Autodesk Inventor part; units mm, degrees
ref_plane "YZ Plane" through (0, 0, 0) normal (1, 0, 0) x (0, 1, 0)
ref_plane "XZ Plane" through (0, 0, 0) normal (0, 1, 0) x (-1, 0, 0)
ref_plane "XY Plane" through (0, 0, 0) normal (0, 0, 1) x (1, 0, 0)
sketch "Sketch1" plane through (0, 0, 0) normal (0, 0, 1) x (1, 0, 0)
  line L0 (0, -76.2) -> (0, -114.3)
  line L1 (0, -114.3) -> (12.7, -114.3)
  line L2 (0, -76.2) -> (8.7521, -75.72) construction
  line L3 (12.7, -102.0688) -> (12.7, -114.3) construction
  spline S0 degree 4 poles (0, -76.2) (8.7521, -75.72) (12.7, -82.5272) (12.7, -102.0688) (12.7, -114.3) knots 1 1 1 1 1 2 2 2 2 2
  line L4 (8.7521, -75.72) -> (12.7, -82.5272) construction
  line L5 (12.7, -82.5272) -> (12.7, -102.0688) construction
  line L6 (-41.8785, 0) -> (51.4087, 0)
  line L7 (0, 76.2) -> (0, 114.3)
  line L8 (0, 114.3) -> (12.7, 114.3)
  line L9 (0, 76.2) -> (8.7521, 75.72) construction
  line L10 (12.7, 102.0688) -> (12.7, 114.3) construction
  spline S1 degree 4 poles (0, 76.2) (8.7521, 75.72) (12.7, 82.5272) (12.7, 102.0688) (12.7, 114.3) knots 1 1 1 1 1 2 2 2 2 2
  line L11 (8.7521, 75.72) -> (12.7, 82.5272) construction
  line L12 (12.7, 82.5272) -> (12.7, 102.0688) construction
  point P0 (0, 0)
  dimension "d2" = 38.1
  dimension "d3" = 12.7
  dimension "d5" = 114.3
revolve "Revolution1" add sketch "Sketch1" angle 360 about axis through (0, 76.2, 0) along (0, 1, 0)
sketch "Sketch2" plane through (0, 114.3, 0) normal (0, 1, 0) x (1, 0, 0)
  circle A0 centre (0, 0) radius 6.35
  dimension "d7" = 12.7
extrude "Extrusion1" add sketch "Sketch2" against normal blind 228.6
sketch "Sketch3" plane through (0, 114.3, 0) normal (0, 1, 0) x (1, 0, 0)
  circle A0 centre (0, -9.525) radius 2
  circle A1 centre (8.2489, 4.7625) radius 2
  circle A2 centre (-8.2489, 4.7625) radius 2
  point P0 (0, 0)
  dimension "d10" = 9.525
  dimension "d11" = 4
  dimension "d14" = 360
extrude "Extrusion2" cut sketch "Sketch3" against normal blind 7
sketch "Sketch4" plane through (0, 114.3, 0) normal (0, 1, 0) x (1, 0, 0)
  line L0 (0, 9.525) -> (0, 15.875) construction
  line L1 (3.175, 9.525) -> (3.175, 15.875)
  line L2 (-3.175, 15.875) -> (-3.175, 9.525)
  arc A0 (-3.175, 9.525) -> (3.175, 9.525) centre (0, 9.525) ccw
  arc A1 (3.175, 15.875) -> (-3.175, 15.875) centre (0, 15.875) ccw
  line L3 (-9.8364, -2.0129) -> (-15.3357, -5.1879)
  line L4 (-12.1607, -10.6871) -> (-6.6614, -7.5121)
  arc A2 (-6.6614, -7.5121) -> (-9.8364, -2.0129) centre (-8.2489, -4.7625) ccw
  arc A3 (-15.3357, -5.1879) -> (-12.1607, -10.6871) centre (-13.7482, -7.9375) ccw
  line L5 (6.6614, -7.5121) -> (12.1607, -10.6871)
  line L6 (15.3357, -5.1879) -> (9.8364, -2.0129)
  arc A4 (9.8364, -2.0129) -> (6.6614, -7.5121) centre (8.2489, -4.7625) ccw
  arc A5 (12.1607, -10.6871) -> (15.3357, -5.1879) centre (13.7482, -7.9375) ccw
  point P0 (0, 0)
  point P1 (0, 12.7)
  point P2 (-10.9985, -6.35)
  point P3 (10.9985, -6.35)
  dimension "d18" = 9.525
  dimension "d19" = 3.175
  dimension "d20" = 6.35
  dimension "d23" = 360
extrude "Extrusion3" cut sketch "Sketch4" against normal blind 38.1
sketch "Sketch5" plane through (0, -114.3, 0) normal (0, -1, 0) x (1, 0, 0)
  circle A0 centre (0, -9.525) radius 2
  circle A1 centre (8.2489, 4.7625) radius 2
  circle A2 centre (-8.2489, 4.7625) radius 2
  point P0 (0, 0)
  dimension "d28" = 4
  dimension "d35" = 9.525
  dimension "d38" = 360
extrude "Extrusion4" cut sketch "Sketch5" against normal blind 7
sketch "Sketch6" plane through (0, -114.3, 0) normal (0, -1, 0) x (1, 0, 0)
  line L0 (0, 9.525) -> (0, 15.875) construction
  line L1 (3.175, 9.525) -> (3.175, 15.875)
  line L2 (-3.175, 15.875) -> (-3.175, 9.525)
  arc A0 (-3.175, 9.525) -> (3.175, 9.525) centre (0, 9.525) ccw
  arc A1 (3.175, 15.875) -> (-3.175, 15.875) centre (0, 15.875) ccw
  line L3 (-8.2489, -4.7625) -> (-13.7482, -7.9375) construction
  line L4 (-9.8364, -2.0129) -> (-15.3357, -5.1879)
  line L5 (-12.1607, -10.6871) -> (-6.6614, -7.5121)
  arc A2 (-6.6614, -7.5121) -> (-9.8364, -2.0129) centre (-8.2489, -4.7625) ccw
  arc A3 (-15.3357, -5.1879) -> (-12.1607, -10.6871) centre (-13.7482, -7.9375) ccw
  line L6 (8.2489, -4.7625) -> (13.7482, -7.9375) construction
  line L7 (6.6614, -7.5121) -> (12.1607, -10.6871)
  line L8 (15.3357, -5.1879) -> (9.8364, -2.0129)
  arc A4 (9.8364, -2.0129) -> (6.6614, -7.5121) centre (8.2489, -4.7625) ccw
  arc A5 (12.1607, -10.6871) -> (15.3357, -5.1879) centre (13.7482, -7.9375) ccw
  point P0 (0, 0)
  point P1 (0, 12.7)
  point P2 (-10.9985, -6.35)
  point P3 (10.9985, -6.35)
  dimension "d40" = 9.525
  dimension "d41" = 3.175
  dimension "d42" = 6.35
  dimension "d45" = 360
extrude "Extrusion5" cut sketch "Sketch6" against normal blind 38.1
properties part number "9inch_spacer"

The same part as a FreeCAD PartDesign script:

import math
import FreeCAD as App
import Part
import Sketcher
Q = App.Units.Quantity

doc = App.newDocument("Part")
body = doc.addObject("PartDesign::Body", "Body")
body.AllowCompound = True

# Sketch on XY plane
sketch1 = doc.addObject("Sketcher::SketchObject", "Sketch")
body.addObject(sketch1)
sketch1.AttachmentSupport = (doc.XY_Plane, [""])
sketch1.MapMode = "FlatFace"
sketch1.addGeometry(Part.BSplineCurve([App.Vector(0, -76.2, 0), App.Vector(8.7521, -75.72, 0), App.Vector(12.7, -82.5272, 0), App.Vector(12.7, -102.0688, 0), App.Vector(12.7, -114.3, 0)], [5, 5], [1, 2], False, 4, [1, 1, 1, 1, 1], False), False)
sketch1.addGeometry(Part.LineSegment(App.Vector(0, -76.2, 0), App.Vector(0, -114.3, 0)), False)
sketch1.addGeometry(Part.LineSegment(App.Vector(0, -114.3, 0), App.Vector(12.7, -114.3, 0)), False)
sketch1.addGeometry(Part.LineSegment(App.Vector(0, 114.3, 0), App.Vector(0, 76.2, 0)), False)
sketch1.addGeometry(Part.BSplineCurve([App.Vector(0, 76.2, 0), App.Vector(8.7521, 75.72, 0), App.Vector(12.7, 82.5272, 0), App.Vector(12.7, 102.0688, 0), App.Vector(12.7, 114.3, 0)], [5, 5], [1, 2], False, 4, [1, 1, 1, 1, 1], False), False)
sketch1.addGeometry(Part.LineSegment(App.Vector(12.7, 114.3, 0), App.Vector(0, 114.3, 0)), False)
sketch1.addConstraint(Sketcher.Constraint("Block", 0))
sketch1.addConstraint(Sketcher.Constraint("Block", 4))
sketch1.addConstraint(Sketcher.Constraint("Coincident", 0, 1, 1, 1))
sketch1.addConstraint(Sketcher.Constraint("Coincident", 1, 2, 2, 1))
sketch1.addConstraint(Sketcher.Constraint("Coincident", 2, 2, 0, 2))
sketch1.addConstraint(Sketcher.Constraint("Coincident", 3, 2, 4, 1))
sketch1.addConstraint(Sketcher.Constraint("Coincident", 4, 2, 5, 1))
sketch1.addConstraint(Sketcher.Constraint("Coincident", 5, 2, 3, 1))
sketch1.addConstraint(Sketcher.Constraint("Vertical", 1))
sketch1.addConstraint(Sketcher.Constraint("Horizontal", 2))
sketch1.addConstraint(Sketcher.Constraint("Vertical", 3))
sketch1.addConstraint(Sketcher.Constraint("Horizontal", 5))
revolution = doc.addObject("PartDesign::Revolution", "Revolution")
body.addObject(revolution)
revolution.Profile = sketch1
revolution.ReferenceAxis = (sketch1, ["V_Axis"])
revolution.Angle = 360

# Sketch on XZ plane
sketch2 = doc.addObject("Sketcher::SketchObject", "Sketch001")
body.addObject(sketch2)
sketch2.AttachmentSupport = (doc.XZ_Plane, [""])
sketch2.MapMode = "FlatFace"
sketch2.AttachmentOffset = App.Placement(App.Vector(0, 0, -4.5 * 25.4), App.Rotation())
sketch2.addGeometry(Part.Circle(App.Vector(0, 0, 0), App.Vector(0, 0, 1), 6), False)
sketch2.addConstraint(Sketcher.Constraint("Coincident", 0, 3, -1, 1))
sketch2.addConstraint(Sketcher.Constraint("Diameter", 0, Q("0.5 in")))
pad1 = doc.addObject("PartDesign::Pad", "Pad")
body.addObject(pad1)
pad1.Profile = sketch2
pad1.Length = Q("9 in")

# Sketch on XZ plane
sketch3 = doc.addObject("Sketcher::SketchObject", "Sketch002")
body.addObject(sketch3)
sketch3.AttachmentSupport = (doc.XZ_Plane, [""])
sketch3.MapMode = "FlatFace"
sketch3.AttachmentOffset = App.Placement(App.Vector(0, 0, -4.5 * 25.4), App.Rotation())
sketch3.addGeometry(Part.Circle(App.Vector(0, 9.5, 0), App.Vector(0, 0, 1), 2), False)
sketch3.addGeometry(Part.Circle(App.Vector(8.2, -4.8, 0), App.Vector(0, 0, 1), 2), False)
sketch3.addGeometry(Part.Circle(App.Vector(-8.2, -4.8, 0), App.Vector(0, 0, 1), 2), False)
sketch3.addConstraint(Sketcher.Constraint("Equal", 0, 1))
sketch3.addConstraint(Sketcher.Constraint("Equal", 1, 2))
sketch3.addConstraint(Sketcher.Constraint("Symmetric", 1, 3, 2, 3, -2))
sketch3.addConstraint(Sketcher.Constraint("PointOnObject", 0, 3, -2))
sketch3.addConstraint(Sketcher.Constraint("Diameter", 0, 4.0))
sketch3.addConstraint(Sketcher.Constraint("DistanceY", -1, 1, 0, 3, Q("0.375 in")))
sketch3.addConstraint(Sketcher.Constraint("DistanceY", 1, 3, -1, 1, Q("0.1875 in")))
sketch3.addConstraint(Sketcher.Constraint("DistanceX", -1, 1, 1, 3, 8.249))
pocket1 = doc.addObject("PartDesign::Pocket", "Pocket")
body.addObject(pocket1)
pocket1.Profile = sketch3
pocket1.Length = Q("0.2755906 in")
pocket1.Reversed = True

# Sketch on XZ plane
sketch4 = doc.addObject("Sketcher::SketchObject", "Sketch003")
body.addObject(sketch4)
sketch4.AttachmentSupport = (doc.XZ_Plane, [""])
sketch4.MapMode = "FlatFace"
sketch4.AttachmentOffset = App.Placement(App.Vector(0, 0, -4.5 * 25.4), App.Rotation())
sketch4.addGeometry(Part.ArcOfCircle(Part.Circle(App.Vector(0, -9.5, 0), App.Vector(0, 0, 1), 3.2), math.radians(0), math.radians(180)), False)
sketch4.addGeometry(Part.LineSegment(App.Vector(3.2, -9.5, 0), App.Vector(3.2, -15.9, 0)), False)
sketch4.addGeometry(Part.ArcOfCircle(Part.Circle(App.Vector(0, -15.9, 0), App.Vector(0, 0, 1), 3.2), math.radians(180), math.radians(360)), False)
sketch4.addGeometry(Part.LineSegment(App.Vector(-3.2, -15.9, 0), App.Vector(-3.2, -9.5, 0)), False)
sketch4.addGeometry(Part.ArcOfCircle(Part.Circle(App.Vector(-8.2, 4.8, 0), App.Vector(0, 0, 1), 3.2), math.radians(-120), math.radians(60)), False)
sketch4.addGeometry(Part.LineSegment(App.Vector(-9.8, 2, 0), App.Vector(-15.3, 5.2, 0)), False)
sketch4.addGeometry(Part.ArcOfCircle(Part.Circle(App.Vector(-13.7, 7.9, 0), App.Vector(0, 0, 1), 3.2), math.radians(60), math.radians(240)), False)
sketch4.addGeometry(Part.LineSegment(App.Vector(-12.2, 10.7, 0), App.Vector(-6.7, 7.5, 0)), False)
sketch4.addGeometry(Part.ArcOfCircle(Part.Circle(App.Vector(8.2, 4.8, 0), App.Vector(0, 0, 1), 3.2), math.radians(120), math.radians(300)), False)
sketch4.addGeometry(Part.LineSegment(App.Vector(6.7, 7.5, 0), App.Vector(12.2, 10.7, 0)), False)
sketch4.addGeometry(Part.ArcOfCircle(Part.Circle(App.Vector(13.7, 7.9, 0), App.Vector(0, 0, 1), 3.2), math.radians(-60), math.radians(120)), False)
sketch4.addGeometry(Part.LineSegment(App.Vector(15.3, 5.2, 0), App.Vector(9.8, 2, 0)), False)
sketch4.addConstraint(Sketcher.Constraint("Tangent", 0, 1, 1, 1))
sketch4.addConstraint(Sketcher.Constraint("Tangent", 1, 2, 2, 2))
sketch4.addConstraint(Sketcher.Constraint("Tangent", 2, 1, 3, 1))
sketch4.addConstraint(Sketcher.Constraint("Tangent", 3, 2, 0, 2))
sketch4.addConstraint(Sketcher.Constraint("Tangent", 4, 1, 5, 1))
sketch4.addConstraint(Sketcher.Constraint("Tangent", 5, 2, 6, 2))
sketch4.addConstraint(Sketcher.Constraint("Tangent", 6, 1, 7, 1))
sketch4.addConstraint(Sketcher.Constraint("Tangent", 7, 2, 4, 2))
sketch4.addConstraint(Sketcher.Constraint("Tangent", 8, 1, 9, 1))
sketch4.addConstraint(Sketcher.Constraint("Tangent", 9, 2, 10, 2))
sketch4.addConstraint(Sketcher.Constraint("Tangent", 10, 1, 11, 1))
sketch4.addConstraint(Sketcher.Constraint("Tangent", 11, 2, 8, 2))
sketch4.addConstraint(Sketcher.Constraint("Vertical", 1))
sketch4.addConstraint(Sketcher.Constraint("Vertical", 3))
sketch4.addConstraint(Sketcher.Constraint("Equal", 2, 4))
sketch4.addConstraint(Sketcher.Constraint("Equal", 4, 6))
sketch4.addConstraint(Sketcher.Constraint("Equal", 6, 8))
sketch4.addConstraint(Sketcher.Constraint("Equal", 8, 10))
sketch4.addConstraint(Sketcher.Constraint("Symmetric", 4, 3, 8, 3, -2))
sketch4.addConstraint(Sketcher.Constraint("Symmetric", 6, 3, 10, 3, -2))
sketch4.addConstraint(Sketcher.Constraint("PointOnObject", 0, 3, -2))
sketch4.addConstraint(Sketcher.Constraint("Radius", 0, Q("0.125 in")))
sketch4.addConstraint(Sketcher.Constraint("DistanceY", 1, 2, 1, 1, Q("0.25 in")))
sketch4.addConstraint(Sketcher.Constraint("Distance", 5, Q("0.25 in")))
sketch4.addConstraint(Sketcher.Constraint("DistanceY", 0, 3, -1, 1, Q("0.375 in")))
sketch4.addConstraint(Sketcher.Constraint("Angle", 5, Q("150.0002 deg")))
sketch4.addConstraint(Sketcher.Constraint("DistanceY", -1, 1, 4, 3, Q("0.1875 in")))
sketch4.addConstraint(Sketcher.Constraint("DistanceX", 4, 3, -1, 1, 8.249))
pocket2 = doc.addObject("PartDesign::Pocket", "Pocket001")
body.addObject(pocket2)
pocket2.Profile = sketch4
pocket2.Length = Q("1.5 in")
pocket2.Reversed = True

# Sketch on XZ plane
sketch5 = doc.addObject("Sketcher::SketchObject", "Sketch004")
body.addObject(sketch5)
sketch5.AttachmentSupport = (doc.XZ_Plane, [""])
sketch5.MapMode = "FlatFace"
sketch5.AttachmentOffset = App.Placement(App.Vector(0, 0, 4.5 * 25.4), App.Rotation())
sketch5.addGeometry(Part.Circle(App.Vector(0, -9.5, 0), App.Vector(0, 0, 1), 2), False)
sketch5.addGeometry(Part.Circle(App.Vector(8.2, 4.8, 0), App.Vector(0, 0, 1), 2), False)
sketch5.addGeometry(Part.Circle(App.Vector(-8.2, 4.8, 0), App.Vector(0, 0, 1), 2), False)
sketch5.addConstraint(Sketcher.Constraint("Equal", 0, 1))
sketch5.addConstraint(Sketcher.Constraint("Equal", 1, 2))
sketch5.addConstraint(Sketcher.Constraint("Symmetric", 1, 3, 2, 3, -2))
sketch5.addConstraint(Sketcher.Constraint("PointOnObject", 0, 3, -2))
sketch5.addConstraint(Sketcher.Constraint("Diameter", 0, 4.0))
sketch5.addConstraint(Sketcher.Constraint("DistanceY", 0, 3, -1, 1, Q("0.375 in")))
sketch5.addConstraint(Sketcher.Constraint("DistanceY", -1, 1, 1, 3, Q("0.1875 in")))
sketch5.addConstraint(Sketcher.Constraint("DistanceX", -1, 1, 1, 3, 8.249))
pocket3 = doc.addObject("PartDesign::Pocket", "Pocket002")
body.addObject(pocket3)
pocket3.Profile = sketch5
pocket3.Length = Q("0.2755906 in")

# Sketch on XZ plane
sketch6 = doc.addObject("Sketcher::SketchObject", "Sketch005")
body.addObject(sketch6)
sketch6.AttachmentSupport = (doc.XZ_Plane, [""])
sketch6.MapMode = "FlatFace"
sketch6.AttachmentOffset = App.Placement(App.Vector(0, 0, 4.5 * 25.4), App.Rotation())
sketch6.addGeometry(Part.ArcOfCircle(Part.Circle(App.Vector(0, 9.5, 0), App.Vector(0, 0, 1), 3.2), math.radians(180), math.radians(360)), False)
sketch6.addGeometry(Part.LineSegment(App.Vector(3.2, 9.5, 0), App.Vector(3.2, 15.9, 0)), False)
sketch6.addGeometry(Part.ArcOfCircle(Part.Circle(App.Vector(0, 15.9, 0), App.Vector(0, 0, 1), 3.2), math.radians(0), math.radians(180)), False)
sketch6.addGeometry(Part.LineSegment(App.Vector(-3.2, 15.9, 0), App.Vector(-3.2, 9.5, 0)), False)
sketch6.addGeometry(Part.ArcOfCircle(Part.Circle(App.Vector(-8.2, -4.8, 0), App.Vector(0, 0, 1), 3.2), math.radians(-60), math.radians(120)), False)
sketch6.addGeometry(Part.LineSegment(App.Vector(-9.8, -2, 0), App.Vector(-15.3, -5.2, 0)), False)
sketch6.addGeometry(Part.ArcOfCircle(Part.Circle(App.Vector(-13.7, -7.9, 0), App.Vector(0, 0, 1), 3.2), math.radians(120), math.radians(300)), False)
sketch6.addGeometry(Part.LineSegment(App.Vector(-12.2, -10.7, 0), App.Vector(-6.7, -7.5, 0)), False)
sketch6.addGeometry(Part.ArcOfCircle(Part.Circle(App.Vector(8.2, -4.8, 0), App.Vector(0, 0, 1), 3.2), math.radians(60), math.radians(240)), False)
sketch6.addGeometry(Part.LineSegment(App.Vector(6.7, -7.5, 0), App.Vector(12.2, -10.7, 0)), False)
sketch6.addGeometry(Part.ArcOfCircle(Part.Circle(App.Vector(13.7, -7.9, 0), App.Vector(0, 0, 1), 3.2), math.radians(-120), math.radians(60)), False)
sketch6.addGeometry(Part.LineSegment(App.Vector(15.3, -5.2, 0), App.Vector(9.8, -2, 0)), False)
sketch6.addConstraint(Sketcher.Constraint("Tangent", 0, 2, 1, 1))
sketch6.addConstraint(Sketcher.Constraint("Tangent", 1, 2, 2, 1))
sketch6.addConstraint(Sketcher.Constraint("Tangent", 2, 2, 3, 1))
sketch6.addConstraint(Sketcher.Constraint("Tangent", 3, 2, 0, 1))
sketch6.addConstraint(Sketcher.Constraint("Tangent", 4, 2, 5, 1))
sketch6.addConstraint(Sketcher.Constraint("Tangent", 5, 2, 6, 1))
sketch6.addConstraint(Sketcher.Constraint("Tangent", 6, 2, 7, 1))
sketch6.addConstraint(Sketcher.Constraint("Tangent", 7, 2, 4, 1))
sketch6.addConstraint(Sketcher.Constraint("Tangent", 8, 2, 9, 1))
sketch6.addConstraint(Sketcher.Constraint("Tangent", 9, 2, 10, 1))
sketch6.addConstraint(Sketcher.Constraint("Tangent", 10, 2, 11, 1))
sketch6.addConstraint(Sketcher.Constraint("Tangent", 11, 2, 8, 1))
sketch6.addConstraint(Sketcher.Constraint("Vertical", 1))
sketch6.addConstraint(Sketcher.Constraint("Vertical", 3))
sketch6.addConstraint(Sketcher.Constraint("Equal", 2, 4))
sketch6.addConstraint(Sketcher.Constraint("Equal", 4, 6))
sketch6.addConstraint(Sketcher.Constraint("Equal", 6, 8))
sketch6.addConstraint(Sketcher.Constraint("Equal", 8, 10))
sketch6.addConstraint(Sketcher.Constraint("Symmetric", 4, 3, 8, 3, -2))
sketch6.addConstraint(Sketcher.Constraint("Symmetric", 6, 3, 10, 3, -2))
sketch6.addConstraint(Sketcher.Constraint("PointOnObject", 0, 3, -2))
sketch6.addConstraint(Sketcher.Constraint("Radius", 0, Q("0.125 in")))
sketch6.addConstraint(Sketcher.Constraint("DistanceY", 1, 1, 1, 2, Q("0.25 in")))
sketch6.addConstraint(Sketcher.Constraint("Distance", 5, Q("0.25 in")))
sketch6.addConstraint(Sketcher.Constraint("DistanceY", -1, 1, 0, 3, Q("0.375 in")))
sketch6.addConstraint(Sketcher.Constraint("Angle", 5, Q("-150.0002 deg")))
sketch6.addConstraint(Sketcher.Constraint("DistanceY", 4, 3, -1, 1, Q("0.1875 in")))
sketch6.addConstraint(Sketcher.Constraint("DistanceX", 4, 3, -1, 1, 8.249))
pocket4 = doc.addObject("PartDesign::Pocket", "Pocket003")
body.addObject(pocket4)
pocket4.Profile = sketch6
pocket4.Length = Q("1.5 in")

doc.recompute()
